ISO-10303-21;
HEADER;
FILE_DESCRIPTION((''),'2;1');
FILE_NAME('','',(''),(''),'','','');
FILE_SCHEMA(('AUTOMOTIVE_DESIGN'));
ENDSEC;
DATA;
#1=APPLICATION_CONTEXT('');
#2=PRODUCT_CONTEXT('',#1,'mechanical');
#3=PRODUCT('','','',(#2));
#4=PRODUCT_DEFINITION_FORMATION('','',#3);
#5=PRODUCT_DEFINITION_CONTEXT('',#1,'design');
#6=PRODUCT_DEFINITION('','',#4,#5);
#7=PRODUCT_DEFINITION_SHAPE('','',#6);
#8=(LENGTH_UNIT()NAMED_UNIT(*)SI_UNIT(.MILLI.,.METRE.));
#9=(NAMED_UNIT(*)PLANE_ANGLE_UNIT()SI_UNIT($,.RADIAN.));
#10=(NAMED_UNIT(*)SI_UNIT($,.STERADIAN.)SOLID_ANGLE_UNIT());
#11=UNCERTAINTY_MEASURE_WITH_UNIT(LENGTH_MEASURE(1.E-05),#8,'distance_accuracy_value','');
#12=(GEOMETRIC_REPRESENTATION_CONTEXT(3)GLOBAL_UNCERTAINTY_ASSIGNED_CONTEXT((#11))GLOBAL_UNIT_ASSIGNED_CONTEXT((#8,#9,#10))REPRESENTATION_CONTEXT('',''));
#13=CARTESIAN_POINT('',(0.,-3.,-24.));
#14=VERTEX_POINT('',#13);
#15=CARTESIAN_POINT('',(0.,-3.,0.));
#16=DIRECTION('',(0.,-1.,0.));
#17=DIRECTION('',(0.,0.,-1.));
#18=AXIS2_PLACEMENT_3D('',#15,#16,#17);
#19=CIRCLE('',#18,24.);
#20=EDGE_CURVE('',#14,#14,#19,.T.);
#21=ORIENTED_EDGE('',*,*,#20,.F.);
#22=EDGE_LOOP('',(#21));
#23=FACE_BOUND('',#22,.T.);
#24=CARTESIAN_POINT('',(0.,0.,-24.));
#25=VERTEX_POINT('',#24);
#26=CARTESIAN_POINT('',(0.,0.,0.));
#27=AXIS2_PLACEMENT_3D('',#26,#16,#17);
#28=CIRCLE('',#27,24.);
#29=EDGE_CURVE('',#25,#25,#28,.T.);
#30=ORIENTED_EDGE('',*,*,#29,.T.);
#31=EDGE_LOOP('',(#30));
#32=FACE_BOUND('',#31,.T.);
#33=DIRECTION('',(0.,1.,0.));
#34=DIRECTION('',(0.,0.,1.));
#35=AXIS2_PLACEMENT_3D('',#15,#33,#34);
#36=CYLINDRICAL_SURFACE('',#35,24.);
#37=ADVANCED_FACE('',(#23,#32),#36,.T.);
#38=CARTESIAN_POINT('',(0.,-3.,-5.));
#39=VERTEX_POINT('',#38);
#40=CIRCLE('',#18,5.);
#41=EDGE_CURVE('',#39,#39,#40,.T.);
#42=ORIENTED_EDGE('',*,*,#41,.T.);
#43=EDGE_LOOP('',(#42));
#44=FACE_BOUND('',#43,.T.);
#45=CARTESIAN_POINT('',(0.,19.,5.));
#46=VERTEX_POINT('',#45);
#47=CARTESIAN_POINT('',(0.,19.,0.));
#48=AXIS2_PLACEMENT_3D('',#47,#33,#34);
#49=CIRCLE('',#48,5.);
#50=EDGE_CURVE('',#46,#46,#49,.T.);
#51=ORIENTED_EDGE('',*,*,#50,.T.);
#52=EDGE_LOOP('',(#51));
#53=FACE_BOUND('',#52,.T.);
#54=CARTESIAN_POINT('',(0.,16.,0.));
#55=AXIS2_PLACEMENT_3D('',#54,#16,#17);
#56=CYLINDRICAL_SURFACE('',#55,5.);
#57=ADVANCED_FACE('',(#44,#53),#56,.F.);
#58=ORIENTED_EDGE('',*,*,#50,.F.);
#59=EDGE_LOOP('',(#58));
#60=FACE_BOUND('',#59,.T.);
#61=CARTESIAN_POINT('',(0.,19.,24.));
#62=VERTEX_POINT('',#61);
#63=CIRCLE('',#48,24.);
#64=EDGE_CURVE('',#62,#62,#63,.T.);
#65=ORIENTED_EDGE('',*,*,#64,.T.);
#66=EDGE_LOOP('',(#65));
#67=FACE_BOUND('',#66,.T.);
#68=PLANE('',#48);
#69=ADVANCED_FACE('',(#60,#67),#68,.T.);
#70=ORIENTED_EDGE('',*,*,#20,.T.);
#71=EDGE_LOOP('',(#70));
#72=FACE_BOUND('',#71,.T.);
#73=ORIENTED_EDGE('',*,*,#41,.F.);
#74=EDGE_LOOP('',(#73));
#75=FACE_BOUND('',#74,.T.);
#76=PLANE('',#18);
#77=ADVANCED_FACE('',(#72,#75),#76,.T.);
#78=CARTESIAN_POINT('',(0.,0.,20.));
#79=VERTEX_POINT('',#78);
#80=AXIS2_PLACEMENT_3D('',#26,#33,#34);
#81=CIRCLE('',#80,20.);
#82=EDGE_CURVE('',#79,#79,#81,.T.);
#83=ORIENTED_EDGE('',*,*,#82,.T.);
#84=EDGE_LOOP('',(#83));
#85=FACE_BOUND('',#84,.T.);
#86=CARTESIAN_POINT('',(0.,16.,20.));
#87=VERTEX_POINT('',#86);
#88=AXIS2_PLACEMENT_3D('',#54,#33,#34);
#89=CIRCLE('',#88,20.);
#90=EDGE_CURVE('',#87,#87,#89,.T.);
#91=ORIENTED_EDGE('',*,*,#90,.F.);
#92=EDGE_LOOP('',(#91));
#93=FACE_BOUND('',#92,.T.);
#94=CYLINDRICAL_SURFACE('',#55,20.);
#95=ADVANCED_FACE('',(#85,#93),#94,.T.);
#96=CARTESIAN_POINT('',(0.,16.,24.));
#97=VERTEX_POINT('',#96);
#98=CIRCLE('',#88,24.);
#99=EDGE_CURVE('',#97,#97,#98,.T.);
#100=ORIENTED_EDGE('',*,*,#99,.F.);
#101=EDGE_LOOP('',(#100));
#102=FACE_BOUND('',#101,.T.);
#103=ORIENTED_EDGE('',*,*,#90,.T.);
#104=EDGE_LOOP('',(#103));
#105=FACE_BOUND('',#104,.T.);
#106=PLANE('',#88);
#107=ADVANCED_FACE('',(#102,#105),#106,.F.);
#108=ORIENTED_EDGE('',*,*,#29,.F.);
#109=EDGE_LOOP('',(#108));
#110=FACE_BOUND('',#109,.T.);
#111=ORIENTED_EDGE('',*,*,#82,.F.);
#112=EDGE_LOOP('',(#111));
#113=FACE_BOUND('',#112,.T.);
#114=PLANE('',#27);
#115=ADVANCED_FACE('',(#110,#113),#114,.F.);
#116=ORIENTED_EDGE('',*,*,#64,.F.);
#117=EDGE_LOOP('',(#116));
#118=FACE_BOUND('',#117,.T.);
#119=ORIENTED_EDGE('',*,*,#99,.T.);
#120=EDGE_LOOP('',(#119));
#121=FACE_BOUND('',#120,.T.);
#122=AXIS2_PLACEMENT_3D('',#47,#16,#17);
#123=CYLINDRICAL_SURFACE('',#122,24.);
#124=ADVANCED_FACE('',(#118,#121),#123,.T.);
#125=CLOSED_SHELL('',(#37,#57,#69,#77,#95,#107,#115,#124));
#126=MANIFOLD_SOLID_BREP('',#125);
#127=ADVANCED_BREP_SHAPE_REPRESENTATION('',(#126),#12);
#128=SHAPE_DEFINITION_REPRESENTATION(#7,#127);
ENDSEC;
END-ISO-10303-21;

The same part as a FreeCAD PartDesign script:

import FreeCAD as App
import Part
import Sketcher

V = App.Vector
Q = App.Units.Quantity

doc = App.newDocument("Part")
body = doc.addObject("PartDesign::Body", "Body")

sketch1 = body.newObject("Sketcher::SketchObject", "Sketch")
sketch1.AttachmentSupport = (doc.getObject("XZ_Plane"), [""])
sketch1.MapMode = "FlatFace"
sketch1.addGeometry([
    Part.Circle(V(0, 0, 0), V(0, 0, 1), 20),
    Part.Circle(V(0, 0, 0), V(0, 0, 1), 5),
], False)
sketch1.addConstraint([
    Sketcher.Constraint("Coincident", 0, 3, -1, 1),
    Sketcher.Constraint("Coincident", 1, 3, -1, 1),
    Sketcher.Constraint("Diameter", 0, Q("40 mm")),
    Sketcher.Constraint("Diameter", 1, Q("10 mm")),
])
pad1 = body.newObject("PartDesign::Pad", "Pad")
pad1.Profile = sketch1
pad1.Length = 16
pad1.Reversed = True

sketch2 = body.newObject("Sketcher::SketchObject", "Sketch001")
sketch2.AttachmentSupport = (doc.getObject("XZ_Plane"), [""])
sketch2.MapMode = "FlatFace"
sketch2.AttachmentOffset = App.Placement(V(0, 0, 3), App.Rotation())
sketch2.addGeometry([
    Part.Circle(V(0, 0, 0), V(0, 0, 1), 24),
    Part.Circle(V(0, 0, 0), V(0, 0, 1), 5),
], False)
sketch2.addConstraint([
    Sketcher.Constraint("Coincident", 0, 3, -1, 1),
    Sketcher.Constraint("Coincident", 1, 3, -1, 1),
    Sketcher.Constraint("Diameter", 0, Q("48 mm")),
    Sketcher.Constraint("Diameter", 1, Q("10 mm")),
])
pad2 = body.newObject("PartDesign::Pad", "Pad001")
pad2.Profile = sketch2
pad2.Length = 3
pad2.Reversed = True

sketch3 = body.newObject("Sketcher::SketchObject", "Sketch002")
sketch3.AttachmentSupport = (doc.getObject("XZ_Plane"), [""])
sketch3.MapMode = "FlatFace"
sketch3.AttachmentOffset = App.Placement(V(0, 0, -16), App.Rotation())
sketch3.addGeometry([
    Part.Circle(V(0, 0, 0), V(0, 0, 1), 24),
    Part.Circle(V(0, 0, 0), V(0, 0, 1), 5),
], False)
sketch3.addConstraint([
    Sketcher.Constraint("Coincident", 0, 3, -1, 1),
    Sketcher.Constraint("Coincident", 1, 3, -1, 1),
    Sketcher.Constraint("Diameter", 0, Q("48 mm")),
    Sketcher.Constraint("Diameter", 1, Q("10 mm")),
])
pad3 = body.newObject("PartDesign::Pad", "Pad002")
pad3.Profile = sketch3
pad3.Length = 3
pad3.Reversed = True

doc.recompute()
